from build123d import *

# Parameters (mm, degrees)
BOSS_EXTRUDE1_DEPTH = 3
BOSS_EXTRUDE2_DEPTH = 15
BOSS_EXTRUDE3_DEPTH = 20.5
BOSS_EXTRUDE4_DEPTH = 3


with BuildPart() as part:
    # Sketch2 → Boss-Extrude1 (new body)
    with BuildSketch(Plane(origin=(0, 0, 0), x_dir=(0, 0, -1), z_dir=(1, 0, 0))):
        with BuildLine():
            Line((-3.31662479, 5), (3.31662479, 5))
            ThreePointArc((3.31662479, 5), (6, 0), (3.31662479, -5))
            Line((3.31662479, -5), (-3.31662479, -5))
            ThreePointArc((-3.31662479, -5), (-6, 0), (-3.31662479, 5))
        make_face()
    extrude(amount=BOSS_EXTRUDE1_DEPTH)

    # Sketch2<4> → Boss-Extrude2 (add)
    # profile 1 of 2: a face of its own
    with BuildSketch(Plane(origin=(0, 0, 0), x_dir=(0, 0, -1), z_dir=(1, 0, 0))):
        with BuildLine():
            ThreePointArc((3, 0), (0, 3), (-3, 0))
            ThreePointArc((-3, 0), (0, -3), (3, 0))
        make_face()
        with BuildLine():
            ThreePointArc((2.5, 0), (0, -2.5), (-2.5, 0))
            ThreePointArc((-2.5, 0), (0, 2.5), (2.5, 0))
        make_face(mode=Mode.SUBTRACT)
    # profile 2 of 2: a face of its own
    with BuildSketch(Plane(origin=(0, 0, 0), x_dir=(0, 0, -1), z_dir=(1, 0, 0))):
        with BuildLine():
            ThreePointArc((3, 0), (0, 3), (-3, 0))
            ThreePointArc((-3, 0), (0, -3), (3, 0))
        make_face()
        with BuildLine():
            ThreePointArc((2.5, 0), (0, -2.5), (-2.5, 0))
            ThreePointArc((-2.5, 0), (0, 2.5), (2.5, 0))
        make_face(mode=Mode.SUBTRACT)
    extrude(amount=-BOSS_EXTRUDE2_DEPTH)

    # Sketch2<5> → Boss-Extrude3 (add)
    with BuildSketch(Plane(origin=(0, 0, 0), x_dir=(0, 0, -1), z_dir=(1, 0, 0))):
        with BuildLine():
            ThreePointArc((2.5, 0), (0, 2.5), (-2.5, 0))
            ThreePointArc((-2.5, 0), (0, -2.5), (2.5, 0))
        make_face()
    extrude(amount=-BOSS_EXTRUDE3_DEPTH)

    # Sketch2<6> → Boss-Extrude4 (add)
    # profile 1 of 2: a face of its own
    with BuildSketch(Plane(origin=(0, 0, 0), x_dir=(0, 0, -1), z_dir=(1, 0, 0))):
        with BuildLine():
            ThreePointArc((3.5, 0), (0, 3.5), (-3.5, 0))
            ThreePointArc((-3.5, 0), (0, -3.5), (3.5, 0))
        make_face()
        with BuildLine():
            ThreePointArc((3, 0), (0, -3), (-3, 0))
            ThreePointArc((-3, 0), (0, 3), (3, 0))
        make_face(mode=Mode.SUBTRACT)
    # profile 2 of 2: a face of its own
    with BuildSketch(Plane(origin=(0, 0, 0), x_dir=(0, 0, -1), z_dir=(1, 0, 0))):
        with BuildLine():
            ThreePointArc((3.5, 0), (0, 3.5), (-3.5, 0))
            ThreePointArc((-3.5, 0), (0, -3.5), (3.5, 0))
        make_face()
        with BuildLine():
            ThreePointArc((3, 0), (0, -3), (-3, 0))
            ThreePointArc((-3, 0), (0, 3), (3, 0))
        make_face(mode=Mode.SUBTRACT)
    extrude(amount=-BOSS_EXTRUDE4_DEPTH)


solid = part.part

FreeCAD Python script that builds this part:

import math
import FreeCAD as App
import Part
import Sketcher
from FreeCAD import Vector
Q = App.Units.Quantity

doc = App.newDocument("Part")
body = doc.addObject("PartDesign::Body", "Body")

# Sketch on YZ plane
sketch1 = body.newObject("Sketcher::SketchObject", "Sketch")
sketch1.AttachmentSupport = (doc.getObject("YZ_Plane"), [""])
sketch1.MapMode = "FlatFace"
sketch1.addGeometry([
    Part.LineSegment(Vector(5, -3.316625, 0), Vector(5, 3.316625, 0)),
    Part.ArcOfCircle(Part.Circle(Vector(0, 0, 0), Vector(0, 0, 1), 6), math.radians(33.55731), math.radians(146.44269)),
    Part.LineSegment(Vector(-5, 3.316625, 0), Vector(-5, -3.316625, 0)),
    Part.ArcOfCircle(Part.Circle(Vector(0, 0, 0), Vector(0, 0, 1), 6), math.radians(-146.44269), math.radians(-33.55731)),
], False)
sketch1.addConstraint([
    Sketcher.Constraint("Coincident", 0, 2, 1, 1),
    Sketcher.Constraint("Coincident", 1, 2, 2, 1),
    Sketcher.Constraint("Coincident", 2, 2, 3, 1),
    Sketcher.Constraint("Coincident", 3, 2, 0, 1),
    Sketcher.Constraint("Vertical", 0),
    Sketcher.Constraint("Vertical", 2),
    Sketcher.Constraint("Coincident", 1, 3, -1, 1),
    Sketcher.Constraint("Coincident", 3, 3, -1, 1),
    Sketcher.Constraint("Equal", 1, 3),
    Sketcher.Constraint("Horizontal", 0, 2, 1, 2),
    Sketcher.Constraint("Radius", 1, Q("6 mm")),
    Sketcher.Constraint("DistanceX", -1, 1, 0, 2, Q("5 mm")),
])
pad1 = body.newObject("PartDesign::Pad", "Pad")
pad1.Profile = sketch1
pad1.Length = 3

# Sketch on YZ plane
sketch2 = body.newObject("Sketcher::SketchObject", "Sketch001")
sketch2.AttachmentSupport = (doc.getObject("YZ_Plane"), [""])
sketch2.MapMode = "FlatFace"
sketch2.addGeometry([
    Part.Circle(Vector(0, 0, 0), Vector(0, 0, 1), 3),
    Part.Circle(Vector(0, 0, 0), Vector(0, 0, 1), 2.5),
], False)
sketch2.addConstraint([
    Sketcher.Constraint("Coincident", 0, 3, -1, 1),
    Sketcher.Constraint("Coincident", 1, 3, -1, 1),
    Sketcher.Constraint("Diameter", 0, Q("6 mm")),
    Sketcher.Constraint("Diameter", 1, Q("5 mm")),
])
pad2 = body.newObject("PartDesign::Pad", "Pad001")
pad2.Profile = sketch2
pad2.Length = 15
pad2.Reversed = True

# Sketch on YZ plane
sketch3 = body.newObject("Sketcher::SketchObject", "Sketch002")
sketch3.AttachmentSupport = (doc.getObject("YZ_Plane"), [""])
sketch3.MapMode = "FlatFace"
sketch3.addGeometry(Part.Circle(Vector(0, 0, 0), Vector(0, 0, 1), 2.5), False)
sketch3.addConstraint([
    Sketcher.Constraint("Coincident", 0, 3, -1, 1),
    Sketcher.Constraint("Diameter", 0, Q("5 mm")),
])
pad3 = body.newObject("PartDesign::Pad", "Pad002")
pad3.Profile = sketch3
pad3.Length = 20.5
pad3.Reversed = True

# Sketch on YZ plane
sketch4 = body.newObject("Sketcher::SketchObject", "Sketch003")
sketch4.AttachmentSupport = (doc.getObject("YZ_Plane"), [""])
sketch4.MapMode = "FlatFace"
sketch4.addGeometry([
    Part.Circle(Vector(0, 0, 0), Vector(0, 0, 1), 3.5),
    Part.Circle(Vector(0, 0, 0), Vector(0, 0, 1), 3),
], False)
sketch4.addConstraint([
    Sketcher.Constraint("Coincident", 0, 3, -1, 1),
    Sketcher.Constraint("Coincident", 1, 3, -1, 1),
    Sketcher.Constraint("Diameter", 0, Q("7 mm")),
    Sketcher.Constraint("Diameter", 1, Q("6 mm")),
])
pad4 = body.newObject("PartDesign::Pad", "Pad003")
pad4.Profile = sketch4
pad4.Length = 3
pad4.Reversed = True

doc.recompute()
